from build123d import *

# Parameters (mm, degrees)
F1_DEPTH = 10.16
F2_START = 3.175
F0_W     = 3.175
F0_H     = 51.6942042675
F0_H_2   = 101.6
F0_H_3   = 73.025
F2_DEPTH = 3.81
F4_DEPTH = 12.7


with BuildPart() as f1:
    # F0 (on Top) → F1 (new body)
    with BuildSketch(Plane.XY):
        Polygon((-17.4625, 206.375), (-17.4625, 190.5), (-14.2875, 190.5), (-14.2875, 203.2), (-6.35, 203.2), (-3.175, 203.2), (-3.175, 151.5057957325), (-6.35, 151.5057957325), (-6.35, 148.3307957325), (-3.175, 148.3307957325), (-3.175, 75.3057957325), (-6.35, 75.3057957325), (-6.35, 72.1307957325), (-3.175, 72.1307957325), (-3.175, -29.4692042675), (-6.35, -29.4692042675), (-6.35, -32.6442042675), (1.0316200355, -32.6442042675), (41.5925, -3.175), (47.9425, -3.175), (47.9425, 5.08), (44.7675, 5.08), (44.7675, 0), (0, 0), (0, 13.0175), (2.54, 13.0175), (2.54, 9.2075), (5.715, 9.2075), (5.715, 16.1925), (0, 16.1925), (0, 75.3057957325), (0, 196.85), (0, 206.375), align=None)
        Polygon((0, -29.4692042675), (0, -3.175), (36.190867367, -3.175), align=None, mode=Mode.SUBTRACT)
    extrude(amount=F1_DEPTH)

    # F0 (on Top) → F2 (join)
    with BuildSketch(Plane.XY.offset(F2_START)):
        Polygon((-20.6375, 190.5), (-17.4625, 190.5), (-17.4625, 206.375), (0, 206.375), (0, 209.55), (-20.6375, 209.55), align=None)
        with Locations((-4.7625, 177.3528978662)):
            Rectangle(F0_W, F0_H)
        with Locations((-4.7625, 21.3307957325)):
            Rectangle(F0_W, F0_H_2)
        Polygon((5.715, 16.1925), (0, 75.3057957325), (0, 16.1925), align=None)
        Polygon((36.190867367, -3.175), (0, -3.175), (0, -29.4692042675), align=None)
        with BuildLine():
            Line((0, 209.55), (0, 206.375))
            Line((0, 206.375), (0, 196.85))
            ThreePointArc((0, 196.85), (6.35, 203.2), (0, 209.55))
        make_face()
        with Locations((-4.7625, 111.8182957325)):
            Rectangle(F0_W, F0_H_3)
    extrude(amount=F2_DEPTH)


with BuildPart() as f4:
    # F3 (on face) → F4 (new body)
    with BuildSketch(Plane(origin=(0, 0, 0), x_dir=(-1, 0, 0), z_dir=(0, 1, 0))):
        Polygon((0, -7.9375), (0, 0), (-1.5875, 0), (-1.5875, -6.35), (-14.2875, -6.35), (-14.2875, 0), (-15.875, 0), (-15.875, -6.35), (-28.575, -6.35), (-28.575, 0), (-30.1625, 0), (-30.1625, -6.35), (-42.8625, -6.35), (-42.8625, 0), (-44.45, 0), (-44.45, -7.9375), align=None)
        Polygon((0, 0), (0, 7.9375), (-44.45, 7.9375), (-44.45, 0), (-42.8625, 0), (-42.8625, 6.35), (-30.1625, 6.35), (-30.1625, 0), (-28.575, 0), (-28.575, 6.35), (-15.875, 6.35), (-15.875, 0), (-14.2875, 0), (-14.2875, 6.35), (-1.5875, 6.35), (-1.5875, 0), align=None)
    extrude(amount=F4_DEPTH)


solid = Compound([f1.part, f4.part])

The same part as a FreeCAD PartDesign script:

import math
import FreeCAD as App
import Part
import Sketcher

V = App.Vector
Q = App.Units.Quantity


def add_polygon(sketch, points):
    """Adds a closed chain of lines whose ends are joined by coincident constraints."""
    first, n = sketch.GeometryCount, len(points)
    for a, b in zip(points, points[1:] + points[:1]):
        sketch.addGeometry(Part.LineSegment(App.Vector(*a, 0), App.Vector(*b, 0)), False)
    for i in range(n):
        sketch.addConstraint(Sketcher.Constraint("Coincident", first + i, 2, first + (i + 1) % n, 1))

doc = App.newDocument("Part")
body = doc.addObject("PartDesign::Body", "Body")

# Sketch on XY plane
sketch1 = body.newObject("Sketcher::SketchObject", "Sketch")
sketch1.AttachmentSupport = (doc.getObject("XY_Plane"), [""])
sketch1.MapMode = "FlatFace"
add_polygon(sketch1, [(-17.5, 206.4), (-17.5, 190.5), (-14.3, 190.5), (-14.3, 203.2), (-3.2, 203.2), (-3.2, 151.5), (-6.3, 151.5), (-6.3, 148.3), (-3.2, 148.3), (-3.2, 75.3), (-6.3, 75.3), (-6.3, 72.1), (-3.2, 72.1), (-3.2, -29.5), (-6.3, -29.5), (-6.3, -32.6), (1, -32.6), (41.6, -3.2), (47.9, -3.2), (47.9, 5.1), (44.8, 5.1), (44.8, 0), (0, 0), (0, 13), (2.5, 13), (2.5, 9.2), (5.7, 9.2), (5.7, 16.2), (0, 16.2), (0, 206.4)])  # lines 0-29
add_polygon(sketch1, [(36.2, -3.2), (0, -29.5), (0, -3.2)])  # lines 30-32
sketch1.addConstraint([
    Sketcher.Constraint("Vertical", 0),
    Sketcher.Constraint("Horizontal", 1),
    Sketcher.Constraint("Vertical", 2),
    Sketcher.Constraint("Horizontal", 3),
    Sketcher.Constraint("Vertical", 4),
    Sketcher.Constraint("Horizontal", 5),
    Sketcher.Constraint("Vertical", 6),
    Sketcher.Constraint("Horizontal", 7),
    Sketcher.Constraint("Vertical", 8),
    Sketcher.Constraint("Horizontal", 9),
    Sketcher.Constraint("Vertical", 10),
    Sketcher.Constraint("Horizontal", 11),
    Sketcher.Constraint("Vertical", 12),
    Sketcher.Constraint("Horizontal", 13),
    Sketcher.Constraint("Vertical", 14),
    Sketcher.Constraint("Horizontal", 15),
    Sketcher.Constraint("Horizontal", 17),
    Sketcher.Constraint("Vertical", 18),
    Sketcher.Constraint("Horizontal", 19),
    Sketcher.Constraint("Vertical", 20),
    Sketcher.Constraint("Horizontal", 21),
    Sketcher.Constraint("Vertical", 22),
    Sketcher.Constraint("Horizontal", 23),
    Sketcher.Constraint("Vertical", 24),
    Sketcher.Constraint("Horizontal", 25),
    Sketcher.Constraint("Vertical", 26),
    Sketcher.Constraint("Horizontal", 27),
    Sketcher.Constraint("Vertical", 28),
    Sketcher.Constraint("Horizontal", 29),
    Sketcher.Constraint("Vertical", 31),
    Sketcher.Constraint("Horizontal", 32),
    Sketcher.Constraint("Coincident", 21, 2, -1, 1),
    Sketcher.Constraint("PointOnObject", 27, 2, -2),
    Sketcher.Constraint("PointOnObject", 30, 2, -2),
    Sketcher.Constraint("Parallel", 16, 30),
    Sketcher.Constraint("Horizontal", 13, 2, 30, 2),
    Sketcher.Constraint("Horizontal", 17, 2, 31, 2),
    Sketcher.Constraint("Vertical", 4, 2, 7, 2),
    Sketcher.Constraint("Vertical", 6, 2, 9, 2),
    Sketcher.Constraint("Vertical", 8, 2, 11, 2),
    Sketcher.Constraint("Vertical", 10, 2, 13, 2),
    Sketcher.Constraint("Equal", 1, 5),
    Sketcher.Constraint("Equal", 13, 19),
    Sketcher.Constraint("Equal", 19, 25),
    Sketcher.Constraint("Equal", 25, 6),
    Sketcher.Constraint("Equal", 6, 10),
    Sketcher.Constraint("Equal", 10, 14),
    Sketcher.Constraint("DistanceY", 12, 2, 12, 1, Q("4 in")),
    Sketcher.Constraint("DistanceX", 23, 1, 23, 2, Q("0.1 in")),
    Sketcher.Constraint("DistanceY", 2, 1, 2, 2, Q("0.5 in")),
    Sketcher.Constraint("DistanceY", 20, 2, 20, 1, Q("0.2 in")),
    Sketcher.Constraint("DistanceY", -1, 1, 2, 2, Q("8 in")),
    Sketcher.Constraint("Angle", 16, Q("36 deg")),
    Sketcher.Constraint("DistanceY", 8, 2, 4, 2, Q("3 in")),
    Sketcher.Constraint("DistanceX", 17, 1, 17, 2, Q("0.25 in")),
    Sketcher.Constraint("DistanceY", 24, 2, 24, 1, Q("0.15 in")),
    Sketcher.Constraint("DistanceX", 1, 1, 1, 2, Q("0.125 in")),
    Sketcher.Constraint("DistanceX", 3, 1, 3, 2, Q("0.4375 in")),
    Sketcher.Constraint("DistanceX", 29, 2, 29, 1, Q("0.6875 in")),
    Sketcher.Constraint("DistanceY", 0, 2, 0, 1, Q("0.625 in")),
    Sketcher.Constraint("DistanceY", 18, 1, 18, 2, Q("0.325 in")),
    Sketcher.Constraint("DistanceY", 26, 1, 26, 2, Q("0.275 in")),
    Sketcher.Constraint("DistanceX", 21, 2, 21, 1, Q("1.7625 in")),
    Sketcher.Constraint("DistanceY", 22, 1, 22, 2, Q("0.5125 in")),
    Sketcher.Constraint("DistanceX", 15, 1, 15, 2, 7.38162),
])
pad1 = body.newObject("PartDesign::Pad", "Pad")
pad1.Profile = sketch1
pad1.Length = Q("0.4 in")

# Sketch on XY plane
sketch2 = body.newObject("Sketcher::SketchObject", "Sketch001")
sketch2.AttachmentSupport = (doc.getObject("XY_Plane"), [""])
sketch2.MapMode = "FlatFace"
sketch2.AttachmentOffset = App.Placement(V(0, 0, 0.125 * 25.4), App.Rotation())
sketch2.addGeometry(Part.LineSegment(V(-20.6, 190.5, 0), V(-17.5, 190.5, 0)), False)  # 0
sketch2.addGeometry(Part.LineSegment(V(-17.5, 190.5, 0), V(-17.5, 206.4, 0)), False)  # 1
sketch2.addGeometry(Part.LineSegment(V(-17.5, 206.4, 0), V(0, 206.4, 0)), False)  # 2
sketch2.addGeometry(Part.LineSegment(V(0, 206.4, 0), V(0, 196.8, 0)), False)  # 3
sketch2.addGeometry(Part.ArcOfCircle(Part.Circle(V(0, 203.2, 0), V(0, 0, 1), 6.3), math.radians(-90), math.radians(90)), False)  # 4
sketch2.addGeometry(Part.LineSegment(V(0, 209.6, 0), V(-20.6, 209.6, 0)), False)  # 5
sketch2.addGeometry(Part.LineSegment(V(-20.6, 209.6, 0), V(-20.6, 190.5, 0)), False)  # 6
add_polygon(sketch2, [(-6.3, 203.2), (-6.3, 151.5), (-3.2, 151.5), (-3.2, 203.2)])  # lines 7-10
add_polygon(sketch2, [(-6.3, 72.1), (-6.3, -29.5), (-3.2, -29.5), (-3.2, 72.1)])  # lines 11-14
add_polygon(sketch2, [(5.7, 16.2), (0, 75.3), (0, 16.2)])  # lines 15-17
add_polygon(sketch2, [(36.2, -3.2), (0, -3.2), (0, -29.5)])  # lines 18-20
add_polygon(sketch2, [(-6.3, 148.3), (-6.3, 75.3), (-3.2, 75.3), (-3.2, 148.3)])  # lines 21-24
sketch2.addConstraint([
    Sketcher.Constraint("Coincident", 0, 2, 1, 1),
    Sketcher.Constraint("Coincident", 1, 2, 2, 1),
    Sketcher.Constraint("Coincident", 2, 2, 3, 1),
    Sketcher.Constraint("Coincident", 3, 2, 4, 1),
    Sketcher.Constraint("Tangent", 4, 2, 5, 1),
    Sketcher.Constraint("Coincident", 5, 2, 6, 1),
    Sketcher.Constraint("Coincident", 6, 2, 0, 1),
    Sketcher.Constraint("Horizontal", 0),
    Sketcher.Constraint("Vertical", 1),
    Sketcher.Constraint("Horizontal", 2),
    Sketcher.Constraint("Vertical", 3),
    Sketcher.Constraint("Horizontal", 5),
    Sketcher.Constraint("Vertical", 6),
    Sketcher.Constraint("Vertical", 7),
    Sketcher.Constraint("Horizontal", 8),
    Sketcher.Constraint("Vertical", 9),
    Sketcher.Constraint("Horizontal", 10),
    Sketcher.Constraint("Vertical", 11),
    Sketcher.Constraint("Horizontal", 12),
    Sketcher.Constraint("Vertical", 13),
    Sketcher.Constraint("Horizontal", 14),
    Sketcher.Constraint("Vertical", 16),
    Sketcher.Constraint("Horizontal", 17),
    Sketcher.Constraint("Horizontal", 18),
    Sketcher.Constraint("Vertical", 19),
    Sketcher.Constraint("Vertical", 21),
    Sketcher.Constraint("Horizontal", 22),
    Sketcher.Constraint("Vertical", 23),
    Sketcher.Constraint("Horizontal", 24),
    Sketcher.Constraint("PointOnObject", 4, 3, -2),
    Sketcher.Constraint("PointOnObject", 2, 2, -2),
    Sketcher.Constraint("PointOnObject", 15, 2, -2),
    Sketcher.Constraint("PointOnObject", 18, 2, -2),
    Sketcher.Constraint("Horizontal", 4, 3, 9, 2),
    Sketcher.Constraint("Horizontal", 12, 2, 19, 2),
    Sketcher.Constraint("Horizontal", 15, 2, 21, 2),
    Sketcher.Constraint("Vertical", 10, 2, 11, 2),
    Sketcher.Constraint("Vertical", 9, 2, 12, 2),
    Sketcher.Constraint("Vertical", 14, 2, 21, 2),
    Sketcher.Constraint("Vertical", 13, 2, 22, 2),
    Sketcher.Constraint("Equal", 0, 8),
    Sketcher.Constraint("DistanceY", 11, 2, 11, 1, Q("4 in")),
    Sketcher.Constraint("Radius", 4, Q("0.25 in")),
    Sketcher.Constraint("DistanceY", -1, 1, 4, 3, Q("8 in")),
    Sketcher.Constraint("Angle", 20, Q("36 deg")),
    Sketcher.Constraint("DistanceY", 15, 2, 8, 2, Q("3 in")),
    Sketcher.Constraint("DistanceY", 6, 2, 6, 1, Q("0.75 in")),
    Sketcher.Constraint("DistanceX", 0, 1, 0, 2, Q("0.125 in")),
    Sketcher.Constraint("DistanceX", 2, 1, 2, 2, Q("0.6875 in")),
    Sketcher.Constraint("DistanceX", 17, 1, 17, 2, Q("0.225 in")),
    Sketcher.Constraint("DistanceY", 1, 1, 1, 2, Q("0.625 in")),
    Sketcher.Constraint("DistanceY", 21, 2, 21, 1, Q("2.875 in")),
    Sketcher.Constraint("DistanceX", 7, 2, -1, 1, Q("0.25 in")),
    Sketcher.Constraint("DistanceY", 18, 2, -1, 1, Q("0.125 in")),
    Sketcher.Constraint("DistanceY", 11, 2, 7, 2, Q("7.125 in")),
    Sketcher.Constraint("DistanceY", -1, 1, 16, 2, Q("0.6375 in")),
    Sketcher.Constraint("DistanceX", 18, 2, 18, 1, 36.190867),
])
pad2 = body.newObject("PartDesign::Pad", "Pad001")
pad2.Profile = sketch2
pad2.Length = Q("0.15 in")
body2 = doc.addObject("PartDesign::Body", "Body001")

# Sketch on XZ plane
sketch3 = body2.newObject("Sketcher::SketchObject", "Sketch002")
sketch3.AttachmentSupport = (doc.getObject("XZ_Plane001"), [""])
sketch3.MapMode = "FlatFace"
add_polygon(sketch3, [(0, -8), (0, 8), (44, 8), (44, -8)])  # lines 0-3
add_polygon(sketch3, [(2, -6), (14, -6), (14, 6), (2, 6)])  # lines 4-7
add_polygon(sketch3, [(16, -6), (29, -6), (29, 6), (16, 6)])  # lines 8-11
add_polygon(sketch3, [(30, -6), (43, -6), (43, 6), (30, 6)])  # lines 12-15
sketch3.addConstraint([
    Sketcher.Constraint("Vertical", 0),
    Sketcher.Constraint("Horizontal", 1),
    Sketcher.Constraint("Vertical", 2),
    Sketcher.Constraint("Horizontal", 3),
    Sketcher.Constraint("Horizontal", 4),
    Sketcher.Constraint("Vertical", 5),
    Sketcher.Constraint("Horizontal", 6),
    Sketcher.Constraint("Vertical", 7),
    Sketcher.Constraint("Horizontal", 8),
    Sketcher.Constraint("Vertical", 9),
    Sketcher.Constraint("Horizontal", 10),
    Sketcher.Constraint("Vertical", 11),
    Sketcher.Constraint("Horizontal", 12),
    Sketcher.Constraint("Vertical", 13),
    Sketcher.Constraint("Horizontal", 14),
    Sketcher.Constraint("Vertical", 15),
    Sketcher.Constraint("Symmetric", 0, 2, 3, 2, -1, 1),
    Sketcher.Constraint("Horizontal", 7, 2, 8, 2),
    Sketcher.Constraint("Horizontal", 6, 2, 9, 2),
    Sketcher.Constraint("Horizontal", 11, 2, 12, 2),
    Sketcher.Constraint("Horizontal", 10, 2, 13, 2),
    Sketcher.Constraint("Equal", 6, 8),
    Sketcher.Constraint("Equal", 10, 12),
    Sketcher.Constraint("Equal", 14, 5),
    Sketcher.Constraint("DistanceX", 4, 1, 4, 2, Q("0.5 in")),
    Sketcher.Constraint("DistanceX", 1, 1, 1, 2, Q("1.75 in")),
    Sketcher.Constraint("DistanceY", 0, 1, 0, 2, Q("0.625 in")),
    Sketcher.Constraint("DistanceY", 4, 2, -1, 1, Q("0.25 in")),
    Sketcher.Constraint("DistanceX", -1, 1, 4, 2, Q("0.5625 in")),
    Sketcher.Constraint("DistanceX", -1, 1, 8, 2, Q("1.125 in")),
    Sketcher.Constraint("DistanceX", -1, 1, 12, 2, Q("1.6875 in")),
])
pad3 = body2.newObject("PartDesign::Pad", "Pad002")
pad3.Profile = sketch3
pad3.Length = Q("0.5 in")
pad3.Reversed = True

doc.recompute()
